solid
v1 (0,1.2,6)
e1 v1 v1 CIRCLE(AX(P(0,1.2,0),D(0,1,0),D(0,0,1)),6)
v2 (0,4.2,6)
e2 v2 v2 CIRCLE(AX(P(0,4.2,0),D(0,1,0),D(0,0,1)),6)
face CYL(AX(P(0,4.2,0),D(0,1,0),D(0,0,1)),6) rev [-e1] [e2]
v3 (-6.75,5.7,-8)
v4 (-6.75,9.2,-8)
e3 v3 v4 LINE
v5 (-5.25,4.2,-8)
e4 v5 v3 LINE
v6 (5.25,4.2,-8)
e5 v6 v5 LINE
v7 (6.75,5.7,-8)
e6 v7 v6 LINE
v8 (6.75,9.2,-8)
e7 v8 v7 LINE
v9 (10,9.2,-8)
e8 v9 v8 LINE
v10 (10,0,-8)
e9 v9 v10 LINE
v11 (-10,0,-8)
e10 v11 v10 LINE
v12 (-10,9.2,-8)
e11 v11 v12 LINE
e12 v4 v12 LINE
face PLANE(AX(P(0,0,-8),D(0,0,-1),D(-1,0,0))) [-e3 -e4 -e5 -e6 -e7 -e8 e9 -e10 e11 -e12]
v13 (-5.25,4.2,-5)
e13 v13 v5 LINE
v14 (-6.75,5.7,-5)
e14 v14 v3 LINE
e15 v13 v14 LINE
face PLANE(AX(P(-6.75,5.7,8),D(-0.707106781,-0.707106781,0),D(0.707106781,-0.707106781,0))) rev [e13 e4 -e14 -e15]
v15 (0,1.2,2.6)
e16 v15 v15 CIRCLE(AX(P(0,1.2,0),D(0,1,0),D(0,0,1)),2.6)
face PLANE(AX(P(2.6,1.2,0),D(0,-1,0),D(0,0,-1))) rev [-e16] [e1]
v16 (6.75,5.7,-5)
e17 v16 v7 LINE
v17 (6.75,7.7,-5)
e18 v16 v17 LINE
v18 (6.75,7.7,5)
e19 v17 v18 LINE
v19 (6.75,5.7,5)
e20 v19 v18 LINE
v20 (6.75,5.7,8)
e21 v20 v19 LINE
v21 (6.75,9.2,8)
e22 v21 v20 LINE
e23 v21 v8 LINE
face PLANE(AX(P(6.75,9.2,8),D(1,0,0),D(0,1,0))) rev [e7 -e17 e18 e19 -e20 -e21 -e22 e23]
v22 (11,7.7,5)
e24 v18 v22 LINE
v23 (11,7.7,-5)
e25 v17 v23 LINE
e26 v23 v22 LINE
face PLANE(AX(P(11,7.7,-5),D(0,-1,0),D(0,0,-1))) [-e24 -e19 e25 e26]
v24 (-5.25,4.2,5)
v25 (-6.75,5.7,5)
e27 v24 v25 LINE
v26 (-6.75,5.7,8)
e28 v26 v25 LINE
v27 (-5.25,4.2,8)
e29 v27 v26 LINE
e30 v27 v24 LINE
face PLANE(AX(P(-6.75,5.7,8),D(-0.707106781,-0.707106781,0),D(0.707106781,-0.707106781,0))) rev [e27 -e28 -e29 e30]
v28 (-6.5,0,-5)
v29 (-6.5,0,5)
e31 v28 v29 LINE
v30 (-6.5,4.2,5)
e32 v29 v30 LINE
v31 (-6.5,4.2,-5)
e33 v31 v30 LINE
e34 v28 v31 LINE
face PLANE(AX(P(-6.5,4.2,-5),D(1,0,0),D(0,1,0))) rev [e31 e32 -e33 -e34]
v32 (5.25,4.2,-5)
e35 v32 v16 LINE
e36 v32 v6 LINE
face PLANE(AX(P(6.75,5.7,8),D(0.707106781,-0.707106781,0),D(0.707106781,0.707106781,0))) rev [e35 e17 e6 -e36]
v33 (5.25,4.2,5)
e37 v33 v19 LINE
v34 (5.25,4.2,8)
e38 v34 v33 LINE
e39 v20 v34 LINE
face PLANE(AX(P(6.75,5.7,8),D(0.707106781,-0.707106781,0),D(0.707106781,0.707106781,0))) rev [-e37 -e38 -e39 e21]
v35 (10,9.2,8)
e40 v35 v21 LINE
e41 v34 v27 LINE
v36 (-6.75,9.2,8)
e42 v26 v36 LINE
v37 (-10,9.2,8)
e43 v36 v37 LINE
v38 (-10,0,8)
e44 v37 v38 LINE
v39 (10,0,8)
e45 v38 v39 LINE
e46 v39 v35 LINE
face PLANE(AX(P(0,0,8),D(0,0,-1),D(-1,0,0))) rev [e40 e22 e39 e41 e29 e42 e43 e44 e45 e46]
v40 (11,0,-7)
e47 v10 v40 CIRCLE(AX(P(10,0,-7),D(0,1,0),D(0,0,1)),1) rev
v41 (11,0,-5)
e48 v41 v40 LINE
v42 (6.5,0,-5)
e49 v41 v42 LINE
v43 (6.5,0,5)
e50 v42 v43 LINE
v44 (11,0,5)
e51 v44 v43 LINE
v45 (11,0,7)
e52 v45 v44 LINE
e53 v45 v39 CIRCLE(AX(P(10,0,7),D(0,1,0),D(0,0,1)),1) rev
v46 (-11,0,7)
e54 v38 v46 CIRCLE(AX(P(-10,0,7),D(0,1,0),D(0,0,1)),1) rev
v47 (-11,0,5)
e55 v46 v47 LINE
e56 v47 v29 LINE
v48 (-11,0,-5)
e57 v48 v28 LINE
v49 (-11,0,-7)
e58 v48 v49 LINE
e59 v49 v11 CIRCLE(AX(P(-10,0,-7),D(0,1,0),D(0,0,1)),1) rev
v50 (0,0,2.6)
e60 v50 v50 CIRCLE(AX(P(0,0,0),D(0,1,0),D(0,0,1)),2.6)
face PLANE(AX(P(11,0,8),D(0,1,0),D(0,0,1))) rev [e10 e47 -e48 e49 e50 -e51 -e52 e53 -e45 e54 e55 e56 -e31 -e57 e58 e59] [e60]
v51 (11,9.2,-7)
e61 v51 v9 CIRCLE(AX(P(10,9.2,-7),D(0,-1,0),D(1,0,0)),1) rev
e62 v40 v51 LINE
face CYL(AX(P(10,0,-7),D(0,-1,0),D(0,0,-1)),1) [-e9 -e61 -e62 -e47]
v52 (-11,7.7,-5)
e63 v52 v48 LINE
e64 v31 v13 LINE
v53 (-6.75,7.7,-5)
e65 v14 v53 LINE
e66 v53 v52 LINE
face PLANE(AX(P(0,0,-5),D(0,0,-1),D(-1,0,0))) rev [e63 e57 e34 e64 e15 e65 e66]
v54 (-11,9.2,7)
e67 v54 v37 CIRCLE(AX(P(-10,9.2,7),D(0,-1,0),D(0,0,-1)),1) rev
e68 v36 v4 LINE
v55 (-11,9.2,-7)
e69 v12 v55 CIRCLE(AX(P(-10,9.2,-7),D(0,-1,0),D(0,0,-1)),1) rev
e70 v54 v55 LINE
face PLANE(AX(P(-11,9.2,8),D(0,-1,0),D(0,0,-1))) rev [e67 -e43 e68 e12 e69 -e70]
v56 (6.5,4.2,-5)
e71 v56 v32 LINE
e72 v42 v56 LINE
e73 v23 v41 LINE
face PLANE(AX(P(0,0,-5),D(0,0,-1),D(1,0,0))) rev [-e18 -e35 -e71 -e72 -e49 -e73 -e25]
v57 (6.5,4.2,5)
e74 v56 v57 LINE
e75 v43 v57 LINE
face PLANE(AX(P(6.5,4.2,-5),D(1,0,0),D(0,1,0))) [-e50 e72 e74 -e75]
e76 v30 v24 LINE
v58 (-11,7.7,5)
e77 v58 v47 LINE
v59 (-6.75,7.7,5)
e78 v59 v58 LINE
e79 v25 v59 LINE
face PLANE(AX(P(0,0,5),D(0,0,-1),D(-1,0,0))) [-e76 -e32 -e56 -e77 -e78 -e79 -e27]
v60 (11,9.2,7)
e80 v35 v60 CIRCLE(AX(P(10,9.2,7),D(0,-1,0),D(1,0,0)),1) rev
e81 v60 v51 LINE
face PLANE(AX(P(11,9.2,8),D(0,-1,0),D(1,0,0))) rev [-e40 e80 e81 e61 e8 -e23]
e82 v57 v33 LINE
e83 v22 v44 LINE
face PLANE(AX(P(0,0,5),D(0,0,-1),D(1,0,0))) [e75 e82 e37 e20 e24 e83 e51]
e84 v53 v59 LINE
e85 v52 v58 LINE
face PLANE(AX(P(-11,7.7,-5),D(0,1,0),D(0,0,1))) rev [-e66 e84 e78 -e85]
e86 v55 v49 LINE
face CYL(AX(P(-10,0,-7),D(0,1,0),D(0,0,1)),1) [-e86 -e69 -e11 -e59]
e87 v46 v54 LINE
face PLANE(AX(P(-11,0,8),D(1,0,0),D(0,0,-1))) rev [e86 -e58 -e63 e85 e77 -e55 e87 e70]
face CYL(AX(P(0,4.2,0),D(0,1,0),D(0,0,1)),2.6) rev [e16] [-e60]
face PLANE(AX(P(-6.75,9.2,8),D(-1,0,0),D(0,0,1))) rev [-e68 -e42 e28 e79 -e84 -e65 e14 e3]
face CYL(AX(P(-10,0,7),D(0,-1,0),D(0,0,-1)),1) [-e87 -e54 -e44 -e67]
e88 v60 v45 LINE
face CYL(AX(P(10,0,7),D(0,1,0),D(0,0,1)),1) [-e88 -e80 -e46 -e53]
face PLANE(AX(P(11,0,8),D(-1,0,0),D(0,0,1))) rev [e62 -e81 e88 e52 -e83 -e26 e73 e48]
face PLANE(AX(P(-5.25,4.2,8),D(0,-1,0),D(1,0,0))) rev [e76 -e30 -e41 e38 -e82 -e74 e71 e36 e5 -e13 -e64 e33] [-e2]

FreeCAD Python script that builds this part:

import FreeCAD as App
import Part
import Sketcher
Q = App.Units.Quantity


def edges_at(feature, points):
    """Names of the edges that pass closest to the given points."""
    edges = feature.Shape.Edges
    near = lambda p: min(range(len(edges)), key=lambda i: edges[i].distToShape(Part.Vertex(*p))[0])
    return sorted({f"Edge{near(p) + 1}" for p in points})


def add_polygon(sketch, points):
    """Adds a closed chain of lines whose ends are joined by coincident constraints."""
    first, n = sketch.GeometryCount, len(points)
    for a, b in zip(points, points[1:] + points[:1]):
        sketch.addGeometry(Part.LineSegment(App.Vector(*a, 0), App.Vector(*b, 0)), False)
    for i in range(n):
        sketch.addConstraint(Sketcher.Constraint("Coincident", first + i, 2, first + (i + 1) % n, 1))

doc = App.newDocument("Part")
params = doc.addObject("Spreadsheet::Sheet", "Params")
for row, (alias, value) in enumerate([
    ("sketch1_width", "22 mm"),
    ("sketch1_width2", "10.5 mm"),
    ("sketch1_height", "9.2 mm"),
    ("sketch1_height2", "3.5 mm"),
    ("pad1_length", "16 mm"),
    ("sketch2_height", "2 mm"),
    ("sketch2_width", "4.5 mm"),
    ("sketch2_height2", "7.7 mm"),
    ("sketch2_height3", "4.2 mm"),
    ("sketch2_width2", "4.25 mm"),
    ("pocket1_length", "10 mm"),
    ("sketch3_diameter", "5.2 mm"),
    ("hole_diameter", "5.2 mm"),
    ("hole_depth", "4.2 mm"),
    ("hole_cbore_diameter", "12 mm"),
    ("hole_cbore_depth", "3 mm"),
    ("fillet_radius", "1 mm"),
], start=1):
    params.set(f"A{row}", alias)
    params.set(f"B{row}", "=" + value)
    params.setAlias(f"B{row}", alias)

body = doc.addObject("PartDesign::Body", "Body")

# Sketch on XY plane
sketch1 = doc.addObject("Sketcher::SketchObject", "Sketch")
body.addObject(sketch1)
sketch1.AttachmentSupport = (doc.XY_Plane, [""])
sketch1.MapMode = "FlatFace"
add_polygon(sketch1, [(-11, 0), (11, 0), (11, 9.2), (6.8, 9.2), (6.8, 5.7), (5.2, 4.2), (-5.2, 4.2), (-6.8, 5.7), (-6.8, 9.2), (-11, 9.2)])  # lines 0-9
sketch1.addConstraint([
    Sketcher.Constraint("Horizontal", 0),
    Sketcher.Constraint("Vertical", 1),
    Sketcher.Constraint("Horizontal", 2),
    Sketcher.Constraint("Vertical", 3),
    Sketcher.Constraint("Horizontal", 5),
    Sketcher.Constraint("Vertical", 7),
    Sketcher.Constraint("Horizontal", 8),
    Sketcher.Constraint("Vertical", 9),
    Sketcher.Constraint("Symmetric", 0, 2, 9, 2, -1, 1),
    Sketcher.Constraint("Symmetric", 3, 2, 6, 2, -2),
    Sketcher.Constraint("Perpendicular", 4, 6),
    Sketcher.Constraint("Horizontal", 2, 2, 7, 2),
    Sketcher.Constraint("Equal", 4, 6),
    Sketcher.Constraint("DistanceX", 0, 1, 0, 2, Q("22 mm")),
    Sketcher.Constraint("DistanceX", 5, 2, 5, 1, Q("10.5 mm")),
    Sketcher.Constraint("DistanceY", 1, 1, 1, 2, Q("9.2 mm")),
    Sketcher.Constraint("DistanceY", 3, 2, 3, 1, Q("3.5 mm")),
    Sketcher.Constraint("DistanceY", 4, 2, 2, 2, Q("5 mm")),
])
sketch1.setExpression("Constraints[23]", "Params.sketch1_width")
sketch1.setExpression("Constraints[24]", "Params.sketch1_width2")
sketch1.setExpression("Constraints[25]", "Params.sketch1_height")
sketch1.setExpression("Constraints[26]", "Params.sketch1_height2")
pad1 = doc.addObject("PartDesign::Pad", "Pad")
body.addObject(pad1)
pad1.Profile = sketch1
pad1.setExpression("Length", "Params.pad1_length")
pad1.Midplane = True

# Sketch on XY plane
sketch2 = doc.addObject("Sketcher::SketchObject", "Sketch001")
body.addObject(sketch2)
sketch2.AttachmentSupport = (doc.XY_Plane, [""])
sketch2.MapMode = "FlatFace"
add_polygon(sketch2, [(-6.8, 7.7), (-11, 7.7), (-11, 0), (-6.5, 0), (-6.5, 4.2), (-5.2, 4.2), (-6.8, 5.7)])  # lines 0-6
sketch2.addConstraint([
    Sketcher.Constraint("Horizontal", 0),
    Sketcher.Constraint("Vertical", 1),
    Sketcher.Constraint("Horizontal", 2),
    Sketcher.Constraint("Vertical", 3),
    Sketcher.Constraint("Horizontal", 4),
    Sketcher.Constraint("Vertical", 6),
    Sketcher.Constraint("PointOnObject", 1, 2, -1),
    Sketcher.Constraint("DistanceY", 6, 1, 6, 2, Q("2 mm")),
    Sketcher.Constraint("Angle", 5, Q("135 deg")),
    Sketcher.Constraint("DistanceX", 2, 1, 2, 2, Q("4.5 mm")),
    Sketcher.Constraint("DistanceY", 1, 2, 1, 1, Q("7.7 mm")),
    Sketcher.Constraint("DistanceY", 3, 1, 3, 2, Q("4.2 mm")),
    Sketcher.Constraint("DistanceX", 0, 2, -1, 1, Q("11 mm")),
    Sketcher.Constraint("DistanceX", 0, 2, 0, 1, Q("4.25 mm")),
])
sketch2.setExpression("Constraints[14]", "Params.sketch2_height")
sketch2.setExpression("Constraints[16]", "Params.sketch2_width")
sketch2.setExpression("Constraints[17]", "Params.sketch2_height2")
sketch2.setExpression("Constraints[18]", "Params.sketch2_height3")
sketch2.setExpression("Constraints[20]", "Params.sketch2_width2")
pocket1 = doc.addObject("PartDesign::Pocket", "Pocket")
body.addObject(pocket1)
pocket1.Profile = sketch2
pocket1.setExpression("Length", "Params.pocket1_length")
pocket1.Midplane = True
doc.recompute()

mirrored = doc.addObject("PartDesign::Mirrored", "Mirrored")
body.addObject(mirrored)
mirrored.Originals = [pocket1]
mirrored.MirrorPlane = (doc.YZ_Plane, [""])
body.Tip = mirrored

# Sketch on XZ plane
sketch3 = doc.addObject("Sketcher::SketchObject", "Sketch002")
body.addObject(sketch3)
sketch3.AttachmentSupport = (doc.XZ_Plane, [""])
sketch3.MapMode = "FlatFace"
sketch3.AttachmentOffset = App.Placement(App.Vector(0, 0, -4.2), App.Rotation())
sketch3.addGeometry(Part.Circle(App.Vector(0, 0, 0), App.Vector(0, 0, 1), 2.6), False)
sketch3.addConstraint([
    Sketcher.Constraint("Coincident", 0, 3, -1, 1),
    Sketcher.Constraint("Diameter", 0, Q("5.2 mm")),
])
sketch3.setExpression("Constraints[1]", "Params.sketch3_diameter")
doc.recompute()
hole = doc.addObject("PartDesign::Hole", "Hole")
body.addObject(hole)
hole.Profile = sketch3
hole.ThreadType = "None"
hole.setExpression("Diameter", "Params.hole_diameter")
hole.DepthType = "Dimension"
hole.setExpression("Depth", "Params.hole_depth")
hole.DrillPoint = "Flat"
hole.HoleCutType = "Counterbore"
hole.setExpression("HoleCutDiameter", "Params.hole_cbore_diameter")
hole.setExpression("HoleCutDepth", "Params.hole_cbore_depth")
hole.Reversed = True
doc.recompute()

fillet = doc.addObject("PartDesign::Fillet", "Fillet")
body.addObject(fillet)
fillet.Base = (hole, edges_at(hole, [
    (11, 4.6, 8),
    (11, 4.6, -8),
    (-11, 4.6, -8),
    (-11, 4.6, 8),
]))
fillet.setExpression("Radius", "Params.fillet_radius")

doc.recompute()
